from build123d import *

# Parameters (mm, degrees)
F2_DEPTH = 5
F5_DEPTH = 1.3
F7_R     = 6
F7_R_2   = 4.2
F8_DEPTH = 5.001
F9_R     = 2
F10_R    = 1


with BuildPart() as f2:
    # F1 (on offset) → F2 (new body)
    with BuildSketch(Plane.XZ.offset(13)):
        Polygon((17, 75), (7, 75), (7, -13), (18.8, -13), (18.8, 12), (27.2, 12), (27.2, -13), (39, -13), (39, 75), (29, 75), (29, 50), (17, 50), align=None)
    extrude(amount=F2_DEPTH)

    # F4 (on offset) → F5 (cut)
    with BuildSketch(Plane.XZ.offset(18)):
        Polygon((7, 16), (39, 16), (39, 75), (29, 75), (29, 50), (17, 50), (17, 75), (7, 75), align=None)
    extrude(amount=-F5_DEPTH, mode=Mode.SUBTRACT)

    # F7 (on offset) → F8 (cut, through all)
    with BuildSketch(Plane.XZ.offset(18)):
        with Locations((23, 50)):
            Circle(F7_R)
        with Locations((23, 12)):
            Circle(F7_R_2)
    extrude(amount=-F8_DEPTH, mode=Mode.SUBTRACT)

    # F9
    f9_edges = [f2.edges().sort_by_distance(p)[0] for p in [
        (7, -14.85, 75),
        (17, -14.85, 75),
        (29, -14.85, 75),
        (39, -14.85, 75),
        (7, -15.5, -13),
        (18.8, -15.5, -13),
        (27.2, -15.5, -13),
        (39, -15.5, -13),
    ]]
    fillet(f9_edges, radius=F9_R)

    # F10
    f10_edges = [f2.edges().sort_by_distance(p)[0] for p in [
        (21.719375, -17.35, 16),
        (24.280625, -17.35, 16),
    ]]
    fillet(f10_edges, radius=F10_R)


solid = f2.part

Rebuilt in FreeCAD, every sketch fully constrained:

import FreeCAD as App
import Part
import Sketcher


def edges_at(feature, points):
    """Names of the edges that pass closest to the given points."""
    edges = feature.Shape.Edges
    near = lambda p: min(range(len(edges)), key=lambda i: edges[i].distToShape(Part.Vertex(*p))[0])
    return sorted({f"Edge{near(p) + 1}" for p in points})


def add_polygon(sketch, points):
    """Adds a closed chain of lines whose ends are joined by coincident constraints."""
    first, n = sketch.GeometryCount, len(points)
    for a, b in zip(points, points[1:] + points[:1]):
        sketch.addGeometry(Part.LineSegment(App.Vector(*a, 0), App.Vector(*b, 0)), False)
    for i in range(n):
        sketch.addConstraint(Sketcher.Constraint("Coincident", first + i, 2, first + (i + 1) % n, 1))

doc = App.newDocument("Part")
params = doc.addObject("Spreadsheet::Sheet", "Params")
for row, (alias, value) in enumerate([
    ("sketch1_width", "10 mm"),
    ("sketch1_width2", "12 mm"),
    ("sketch1_height", "88 mm"),
    ("sketch1_height2", "25 mm"),
    ("sketch1_width3", "11.8 mm"),
    ("pad1_length", "5 mm"),
    ("sketch2_width", "32 mm"),
    ("sketch2_width2", "10 mm"),
    ("sketch2_height", "59 mm"),
    ("sketch2_height2", "25 mm"),
    ("pocket1_length", "1.3 mm"),
    ("sketch3_diameter", "12 mm"),
    ("sketch3_diameter2", "8.4 mm"),
    ("fillet_radius", "2 mm"),
    ("fillet2_radius", "1 mm"),
], start=1):
    params.set(f"A{row}", alias)
    params.set(f"B{row}", "=" + value)
    params.setAlias(f"B{row}", alias)

body = doc.addObject("PartDesign::Body", "Body")

# Sketch on XZ plane
sketch1 = doc.addObject("Sketcher::SketchObject", "Sketch")
body.addObject(sketch1)
sketch1.AttachmentSupport = (doc.XZ_Plane, [""])
sketch1.MapMode = "FlatFace"
sketch1.AttachmentOffset = App.Placement(App.Vector(0, 0, 13), App.Rotation())
add_polygon(sketch1, [(17, 75), (7, 75), (7, -13), (19, -13), (19, 12), (27, 12), (27, -13), (39, -13), (39, 75), (29, 75), (29, 50), (17, 50)])  # lines 0-11
sketch1.addConstraint([
    Sketcher.Constraint("Horizontal", 0),
    Sketcher.Constraint("Vertical", 1),
    Sketcher.Constraint("Horizontal", 2),
    Sketcher.Constraint("Vertical", 3),
    Sketcher.Constraint("Horizontal", 4),
    Sketcher.Constraint("Vertical", 5),
    Sketcher.Constraint("Horizontal", 6),
    Sketcher.Constraint("Vertical", 7),
    Sketcher.Constraint("Horizontal", 8),
    Sketcher.Constraint("Vertical", 9),
    Sketcher.Constraint("Horizontal", 10),
    Sketcher.Constraint("Vertical", 11),
    Sketcher.Constraint("Horizontal", 2, 2, 5, 2),
    Sketcher.Constraint("Horizontal", 0, 2, 7, 2),
    Sketcher.Constraint("Equal", 2, 6),
    Sketcher.Constraint("Equal", 0, 8),
    Sketcher.Constraint("Equal", 5, 9),
    Sketcher.Constraint("DistanceX", 0, 2, 0, 1, 10.0),
    Sketcher.Constraint("DistanceX", 10, 2, 10, 1, 12.0),
    Sketcher.Constraint("DistanceY", 1, 2, 1, 1, 88.0),
    Sketcher.Constraint("DistanceY", 3, 1, 3, 2, 25.0),
    Sketcher.Constraint("DistanceX", 2, 1, 2, 2, 11.8),
    Sketcher.Constraint("DistanceX", -1, 1, 0, 2, 7.0),
    Sketcher.Constraint("DistanceY", -1, 1, 0, 2, 75.0),
])
sketch1.setExpression("Constraints[29]", "Params.sketch1_width")
sketch1.setExpression("Constraints[30]", "Params.sketch1_width2")
sketch1.setExpression("Constraints[31]", "Params.sketch1_height")
sketch1.setExpression("Constraints[32]", "Params.sketch1_height2")
sketch1.setExpression("Constraints[33]", "Params.sketch1_width3")
pad1 = doc.addObject("PartDesign::Pad", "Pad")
body.addObject(pad1)
pad1.Profile = sketch1
pad1.setExpression("Length", "Params.pad1_length")

# Sketch on XZ plane
sketch2 = doc.addObject("Sketcher::SketchObject", "Sketch001")
body.addObject(sketch2)
sketch2.AttachmentSupport = (doc.XZ_Plane, [""])
sketch2.MapMode = "FlatFace"
sketch2.AttachmentOffset = App.Placement(App.Vector(0, 0, 18), App.Rotation())
add_polygon(sketch2, [(7, 16), (39, 16), (39, 75), (29, 75), (29, 50), (17, 50), (17, 75), (7, 75)])  # lines 0-7
sketch2.addConstraint([
    Sketcher.Constraint("Horizontal", 0),
    Sketcher.Constraint("Vertical", 1),
    Sketcher.Constraint("Horizontal", 2),
    Sketcher.Constraint("Vertical", 3),
    Sketcher.Constraint("Horizontal", 4),
    Sketcher.Constraint("Vertical", 5),
    Sketcher.Constraint("Horizontal", 6),
    Sketcher.Constraint("Vertical", 7),
    Sketcher.Constraint("Horizontal", 2, 2, 5, 2),
    Sketcher.Constraint("Equal", 2, 6),
    Sketcher.Constraint("DistanceX", 0, 1, 0, 2, 32.0),
    Sketcher.Constraint("DistanceX", 2, 2, 2, 1, 10.0),
    Sketcher.Constraint("DistanceY", 1, 1, 1, 2, 59.0),
    Sketcher.Constraint("DistanceY", 3, 2, 3, 1, 25.0),
    Sketcher.Constraint("DistanceX", -1, 1, 0, 2, 39.0),
    Sketcher.Constraint("DistanceY", -1, 1, 0, 2, 16.0),
])
sketch2.setExpression("Constraints[18]", "Params.sketch2_width")
sketch2.setExpression("Constraints[19]", "Params.sketch2_width2")
sketch2.setExpression("Constraints[20]", "Params.sketch2_height")
sketch2.setExpression("Constraints[21]", "Params.sketch2_height2")
pocket1 = doc.addObject("PartDesign::Pocket", "Pocket")
body.addObject(pocket1)
pocket1.Profile = sketch2
pocket1.setExpression("Length", "Params.pocket1_length")

# Sketch on XZ plane
sketch3 = doc.addObject("Sketcher::SketchObject", "Sketch002")
body.addObject(sketch3)
sketch3.AttachmentSupport = (doc.XZ_Plane, [""])
sketch3.MapMode = "FlatFace"
sketch3.AttachmentOffset = App.Placement(App.Vector(0, 0, 18), App.Rotation())
sketch3.addGeometry([
    Part.Circle(App.Vector(23, 50, 0), App.Vector(0, 0, 1), 6),
    Part.Circle(App.Vector(23, 12, 0), App.Vector(0, 0, 1), 4.2),
], False)
sketch3.addConstraint([
    Sketcher.Constraint("Vertical", 0, 3, 1, 3),
    Sketcher.Constraint("Diameter", 0, 12.0),
    Sketcher.Constraint("Diameter", 1, 8.4),
    Sketcher.Constraint("DistanceX", -1, 1, 0, 3, 23.0),
    Sketcher.Constraint("DistanceY", -1, 1, 0, 3, 50.0),
    Sketcher.Constraint("DistanceY", -1, 1, 1, 3, 12.0),
])
sketch3.setExpression("Constraints[1]", "Params.sketch3_diameter")
sketch3.setExpression("Constraints[2]", "Params.sketch3_diameter2")
pocket2 = doc.addObject("PartDesign::Pocket", "Pocket001")
body.addObject(pocket2)
pocket2.Profile = sketch3
pocket2.Type = "ThroughAll"
doc.recompute()

fillet = doc.addObject("PartDesign::Fillet", "Fillet")
body.addObject(fillet)
fillet.Base = (pocket2, edges_at(pocket2, [
    (7, -14.85, 75),
    (17, -14.85, 75),
    (29, -14.85, 75),
    (39, -14.85, 75),
    (7, -15.5, -13),
    (18.8, -15.5, -13),
    (27.2, -15.5, -13),
    (39, -15.5, -13),
]))
fillet.setExpression("Radius", "Params.fillet_radius")
doc.recompute()

fillet2 = doc.addObject("PartDesign::Fillet", "Fillet001")
body.addObject(fillet2)
fillet2.Base = (fillet, edges_at(fillet, [(21.719, -17.35, 16), (24.281, -17.35, 16)]))
fillet2.setExpression("Radius", "Params.fillet2_radius")

doc.recompute()
